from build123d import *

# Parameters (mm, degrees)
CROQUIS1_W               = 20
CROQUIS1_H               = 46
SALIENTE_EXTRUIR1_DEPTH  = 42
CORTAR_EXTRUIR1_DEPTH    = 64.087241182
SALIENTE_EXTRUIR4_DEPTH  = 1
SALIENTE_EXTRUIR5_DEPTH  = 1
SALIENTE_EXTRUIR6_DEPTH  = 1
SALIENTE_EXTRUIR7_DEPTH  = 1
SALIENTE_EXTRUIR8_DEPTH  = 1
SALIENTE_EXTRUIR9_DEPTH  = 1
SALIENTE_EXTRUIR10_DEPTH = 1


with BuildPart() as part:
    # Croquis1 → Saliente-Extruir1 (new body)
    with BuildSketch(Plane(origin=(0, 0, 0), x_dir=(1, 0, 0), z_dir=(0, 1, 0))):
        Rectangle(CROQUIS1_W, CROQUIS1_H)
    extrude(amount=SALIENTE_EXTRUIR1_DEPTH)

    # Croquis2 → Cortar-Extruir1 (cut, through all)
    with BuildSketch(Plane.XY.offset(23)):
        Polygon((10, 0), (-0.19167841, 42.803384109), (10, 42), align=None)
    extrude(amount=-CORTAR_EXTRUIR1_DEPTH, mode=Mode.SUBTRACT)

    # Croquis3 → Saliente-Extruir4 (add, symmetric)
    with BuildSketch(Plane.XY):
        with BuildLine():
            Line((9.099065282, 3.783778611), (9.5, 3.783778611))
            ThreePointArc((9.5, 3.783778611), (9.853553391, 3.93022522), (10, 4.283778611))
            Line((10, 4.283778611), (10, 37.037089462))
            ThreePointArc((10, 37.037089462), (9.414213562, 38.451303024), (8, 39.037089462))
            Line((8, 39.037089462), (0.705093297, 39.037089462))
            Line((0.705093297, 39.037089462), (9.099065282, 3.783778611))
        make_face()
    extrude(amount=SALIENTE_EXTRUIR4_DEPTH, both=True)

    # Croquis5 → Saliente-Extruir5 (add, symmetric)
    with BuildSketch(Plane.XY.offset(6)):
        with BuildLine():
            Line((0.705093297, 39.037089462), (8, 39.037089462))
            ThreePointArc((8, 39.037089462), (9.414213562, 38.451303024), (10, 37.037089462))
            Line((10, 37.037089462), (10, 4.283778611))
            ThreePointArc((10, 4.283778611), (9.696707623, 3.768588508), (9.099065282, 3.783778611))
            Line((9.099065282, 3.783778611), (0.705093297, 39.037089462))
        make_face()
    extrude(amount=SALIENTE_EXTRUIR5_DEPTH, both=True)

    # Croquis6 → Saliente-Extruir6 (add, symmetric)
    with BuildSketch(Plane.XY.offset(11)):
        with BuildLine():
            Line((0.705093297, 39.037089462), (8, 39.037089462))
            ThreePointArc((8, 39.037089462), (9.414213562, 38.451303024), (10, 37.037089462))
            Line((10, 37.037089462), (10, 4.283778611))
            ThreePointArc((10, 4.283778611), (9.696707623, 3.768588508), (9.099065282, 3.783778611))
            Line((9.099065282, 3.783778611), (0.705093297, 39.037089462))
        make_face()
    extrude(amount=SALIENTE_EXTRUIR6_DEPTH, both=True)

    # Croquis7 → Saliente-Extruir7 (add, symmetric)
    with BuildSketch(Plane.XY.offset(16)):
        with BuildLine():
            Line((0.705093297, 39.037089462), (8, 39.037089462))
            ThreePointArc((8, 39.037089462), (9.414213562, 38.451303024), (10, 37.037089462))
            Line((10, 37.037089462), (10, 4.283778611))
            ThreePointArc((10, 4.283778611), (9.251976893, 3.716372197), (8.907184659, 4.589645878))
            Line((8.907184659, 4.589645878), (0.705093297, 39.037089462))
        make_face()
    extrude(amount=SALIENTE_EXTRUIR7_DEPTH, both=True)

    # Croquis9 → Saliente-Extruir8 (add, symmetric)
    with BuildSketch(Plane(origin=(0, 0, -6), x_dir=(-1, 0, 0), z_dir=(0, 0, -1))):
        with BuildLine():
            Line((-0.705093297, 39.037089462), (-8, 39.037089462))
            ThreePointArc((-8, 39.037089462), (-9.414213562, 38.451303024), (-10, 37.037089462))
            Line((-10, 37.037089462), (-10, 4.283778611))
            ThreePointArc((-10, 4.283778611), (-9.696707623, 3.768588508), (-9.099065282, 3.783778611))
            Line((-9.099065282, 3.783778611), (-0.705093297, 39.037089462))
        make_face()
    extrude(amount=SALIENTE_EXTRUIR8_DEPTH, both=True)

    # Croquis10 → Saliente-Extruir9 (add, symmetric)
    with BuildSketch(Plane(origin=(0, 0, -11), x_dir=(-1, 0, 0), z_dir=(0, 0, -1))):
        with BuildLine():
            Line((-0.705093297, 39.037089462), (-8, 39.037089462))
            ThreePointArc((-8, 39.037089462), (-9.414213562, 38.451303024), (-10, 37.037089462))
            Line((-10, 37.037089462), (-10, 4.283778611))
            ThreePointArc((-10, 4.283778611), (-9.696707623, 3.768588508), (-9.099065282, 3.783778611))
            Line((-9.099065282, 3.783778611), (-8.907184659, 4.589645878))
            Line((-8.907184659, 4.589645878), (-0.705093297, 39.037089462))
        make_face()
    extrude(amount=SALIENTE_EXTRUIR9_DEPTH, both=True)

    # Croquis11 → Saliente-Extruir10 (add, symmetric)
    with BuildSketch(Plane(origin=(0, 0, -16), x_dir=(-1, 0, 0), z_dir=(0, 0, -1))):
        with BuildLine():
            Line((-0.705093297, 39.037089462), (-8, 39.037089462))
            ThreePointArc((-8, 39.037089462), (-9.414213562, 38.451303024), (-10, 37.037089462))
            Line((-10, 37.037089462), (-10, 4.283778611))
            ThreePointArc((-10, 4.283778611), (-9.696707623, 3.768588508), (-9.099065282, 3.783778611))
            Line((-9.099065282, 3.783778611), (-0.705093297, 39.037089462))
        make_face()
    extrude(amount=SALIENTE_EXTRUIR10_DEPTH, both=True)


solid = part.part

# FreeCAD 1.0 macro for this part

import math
import FreeCAD as App
import Part
import Sketcher

V = App.Vector

doc = App.newDocument("Part")
body = doc.addObject("PartDesign::Body", "Body")

# Sketch on XZ plane
sketch1 = body.newObject("Sketcher::SketchObject", "Sketch")
sketch1.AttachmentSupport = (doc.getObject("XZ_Plane"), [""])
sketch1.MapMode = "FlatFace"
sketch1.addGeometry(Part.LineSegment(V(-10, -23, 0), V(-10, 23, 0)), False)
sketch1.addGeometry(Part.LineSegment(V(-10, 23, 0), V(10, 23, 0)), False)
sketch1.addGeometry(Part.LineSegment(V(10, 23, 0), V(10, -23, 0)), False)
sketch1.addGeometry(Part.LineSegment(V(10, -23, 0), V(-10, -23, 0)), False)
sketch1.addConstraint(Sketcher.Constraint("Coincident", 0, 2, 1, 1))
sketch1.addConstraint(Sketcher.Constraint("Coincident", 1, 2, 2, 1))
sketch1.addConstraint(Sketcher.Constraint("Coincident", 2, 2, 3, 1))
sketch1.addConstraint(Sketcher.Constraint("Coincident", 3, 2, 0, 1))
sketch1.addConstraint(Sketcher.Constraint("Vertical", 0))
sketch1.addConstraint(Sketcher.Constraint("Horizontal", 1))
sketch1.addConstraint(Sketcher.Constraint("Vertical", 2))
sketch1.addConstraint(Sketcher.Constraint("Horizontal", 3))
sketch1.addConstraint(Sketcher.Constraint("Symmetric", 0, 2, 2, 2, -1, 1))
sketch1.addConstraint(Sketcher.Constraint("DistanceX", 1, 1, 1, 2, 20.0))
sketch1.addConstraint(Sketcher.Constraint("DistanceY", 0, 1, 0, 2, 46.0))
pad1 = body.newObject("PartDesign::Pad", "Pad")
pad1.Profile = sketch1
pad1.Length = 42
pad1.Reversed = True

# Sketch on XY plane
sketch2 = body.newObject("Sketcher::SketchObject", "Sketch001")
sketch2.AttachmentSupport = (doc.getObject("XY_Plane"), [""])
sketch2.MapMode = "FlatFace"
sketch2.AttachmentOffset = App.Placement(V(0, 0, 23), App.Rotation())
sketch2.addGeometry(Part.LineSegment(V(-0.191678, 42.803384, 0), V(10, 0, 0)), False)
sketch2.addGeometry(Part.LineSegment(V(10, 0, 0), V(10, 42, 0)), False)
sketch2.addGeometry(Part.LineSegment(V(10, 42, 0), V(-0.191678, 42.803384, 0)), False)
sketch2.addConstraint(Sketcher.Constraint("Coincident", 0, 2, 1, 1))
sketch2.addConstraint(Sketcher.Constraint("Coincident", 1, 2, 2, 1))
sketch2.addConstraint(Sketcher.Constraint("Coincident", 2, 2, 0, 1))
sketch2.addConstraint(Sketcher.Constraint("Vertical", 1))
sketch2.addConstraint(Sketcher.Constraint("PointOnObject", 0, 2, -1))
sketch2.addConstraint(Sketcher.Constraint("DistanceY", 1, 1, 1, 2, 42.0))
sketch2.addConstraint(Sketcher.Constraint("Distance", 0, 44.0))
sketch2.addConstraint(Sketcher.Constraint("DistanceX", -1, 1, 0, 2, 10.0))
sketch2.addConstraint(Sketcher.Constraint("DistanceX", 2, 2, -1, 1, 0.191678))
pocket1 = body.newObject("PartDesign::Pocket", "Pocket")
pocket1.Profile = sketch2
pocket1.Type = "ThroughAll"

# Sketch on XY plane
sketch3 = body.newObject("Sketcher::SketchObject", "Sketch002")
sketch3.AttachmentSupport = (doc.getObject("XY_Plane"), [""])
sketch3.MapMode = "FlatFace"
sketch3.addGeometry(Part.LineSegment(V(9.099065, 3.783779, 0), V(9.5, 3.783779, 0)), False)
sketch3.addGeometry(Part.ArcOfCircle(Part.Circle(V(9.5, 4.283779, 0), V(0, 0, 1), 0.5), math.radians(-90), math.radians(0)), False)
sketch3.addGeometry(Part.LineSegment(V(10, 4.283779, 0), V(10, 37.037089, 0)), False)
sketch3.addGeometry(Part.ArcOfCircle(Part.Circle(V(8, 37.037089, 0), V(0, 0, 1), 2), math.radians(0), math.radians(90)), False)
sketch3.addGeometry(Part.LineSegment(V(8, 39.037089, 0), V(0.705093, 39.037089, 0)), False)
sketch3.addGeometry(Part.LineSegment(V(0.705093, 39.037089, 0), V(9.099065, 3.783779, 0)), False)
sketch3.addConstraint(Sketcher.Constraint("Tangent", 0, 2, 1, 1))
sketch3.addConstraint(Sketcher.Constraint("Tangent", 1, 2, 2, 1))
sketch3.addConstraint(Sketcher.Constraint("Tangent", 2, 2, 3, 1))
sketch3.addConstraint(Sketcher.Constraint("Tangent", 3, 2, 4, 1))
sketch3.addConstraint(Sketcher.Constraint("Coincident", 4, 2, 5, 1))
sketch3.addConstraint(Sketcher.Constraint("Coincident", 5, 2, 0, 1))
sketch3.addConstraint(Sketcher.Constraint("Horizontal", 0))
sketch3.addConstraint(Sketcher.Constraint("Vertical", 2))
sketch3.addConstraint(Sketcher.Constraint("Horizontal", 4))
sketch3.addConstraint(Sketcher.Constraint("Radius", 3, 2.0))
sketch3.addConstraint(Sketcher.Constraint("Radius", 1, 0.5))
sketch3.addConstraint(Sketcher.Constraint("DistanceX", -1, 1, 3, 3, 8.0))
sketch3.addConstraint(Sketcher.Constraint("DistanceY", 2, 1, 2, 2, 32.753311))
sketch3.addConstraint(Sketcher.Constraint("DistanceX", 0, 1, 0, 2, 0.400935))
sketch3.addConstraint(Sketcher.Constraint("DistanceX", 4, 2, 4, 1, 7.294907))
sketch3.addConstraint(Sketcher.Constraint("DistanceY", -1, 1, 1, 3, 4.283779))
pad2 = body.newObject("PartDesign::Pad", "Pad001")
pad2.Profile = sketch3
pad2.Length = 2
pad2.Midplane = True

# Sketch on XY plane
sketch4 = body.newObject("Sketcher::SketchObject", "Sketch003")
sketch4.AttachmentSupport = (doc.getObject("XY_Plane"), [""])
sketch4.MapMode = "FlatFace"
sketch4.AttachmentOffset = App.Placement(V(0, 0, 6), App.Rotation())
sketch4.addGeometry(Part.LineSegment(V(8, 39.037089, 0), V(0.705093, 39.037089, 0)), False)
sketch4.addGeometry(Part.LineSegment(V(0.705093, 39.037089, 0), V(9.099065, 3.783779, 0)), False)
sketch4.addGeometry(Part.ArcOfCircle(Part.Circle(V(9.410788, 4.283779, 0), V(0, 0, 1), 0.589212), math.radians(-121.941276), math.radians(0)), False)
sketch4.addGeometry(Part.LineSegment(V(10, 4.283779, 0), V(10, 37.037089, 0)), False)
sketch4.addGeometry(Part.ArcOfCircle(Part.Circle(V(8, 37.037089, 0), V(0, 0, 1), 2), math.radians(0), math.radians(90)), False)
sketch4.addConstraint(Sketcher.Constraint("Coincident", 0, 2, 1, 1))
sketch4.addConstraint(Sketcher.Constraint("Coincident", 1, 2, 2, 1))
sketch4.addConstraint(Sketcher.Constraint("Tangent", 2, 2, 3, 1))
sketch4.addConstraint(Sketcher.Constraint("Tangent", 3, 2, 4, 1))
sketch4.addConstraint(Sketcher.Constraint("Tangent", 4, 2, 0, 1))
sketch4.addConstraint(Sketcher.Constraint("Horizontal", 0))
sketch4.addConstraint(Sketcher.Constraint("Vertical", 3))
sketch4.addConstraint(Sketcher.Constraint("Radius", 4, 2.0))
sketch4.addConstraint(Sketcher.Constraint("DistanceX", -1, 1, 4, 3, 8.0))
sketch4.addConstraint(Sketcher.Constraint("DistanceY", 1, 2, 2, 3, 0.5))
sketch4.addConstraint(Sketcher.Constraint("Radius", 2, 0.589212))
sketch4.addConstraint(Sketcher.Constraint("DistanceY", 3, 1, 3, 2, 32.753311))
sketch4.addConstraint(Sketcher.Constraint("DistanceX", 0, 2, 0, 1, 7.294907))
sketch4.addConstraint(Sketcher.Constraint("DistanceY", -1, 1, 2, 3, 4.283779))
pad3 = body.newObject("PartDesign::Pad", "Pad002")
pad3.Profile = sketch4
pad3.Length = 2
pad3.Midplane = True

# Sketch on XY plane
sketch5 = body.newObject("Sketcher::SketchObject", "Sketch004")
sketch5.AttachmentSupport = (doc.getObject("XY_Plane"), [""])
sketch5.MapMode = "FlatFace"
sketch5.AttachmentOffset = App.Placement(V(0, 0, 11), App.Rotation())
sketch5.addGeometry(Part.LineSegment(V(8, 39.037089, 0), V(0.705093, 39.037089, 0)), False)
sketch5.addGeometry(Part.LineSegment(V(0.705093, 39.037089, 0), V(9.099065, 3.783779, 0)), False)
sketch5.addGeometry(Part.ArcOfCircle(Part.Circle(V(9.410788, 4.283779, 0), V(0, 0, 1), 0.589212), math.radians(-121.941276), math.radians(0)), False)
sketch5.addGeometry(Part.LineSegment(V(10, 4.283779, 0), V(10, 37.037089, 0)), False)
sketch5.addGeometry(Part.ArcOfCircle(Part.Circle(V(8, 37.037089, 0), V(0, 0, 1), 2), math.radians(0), math.radians(90)), False)
sketch5.addConstraint(Sketcher.Constraint("Coincident", 0, 2, 1, 1))
sketch5.addConstraint(Sketcher.Constraint("Coincident", 1, 2, 2, 1))
sketch5.addConstraint(Sketcher.Constraint("Tangent", 2, 2, 3, 1))
sketch5.addConstraint(Sketcher.Constraint("Tangent", 3, 2, 4, 1))
sketch5.addConstraint(Sketcher.Constraint("Tangent", 4, 2, 0, 1))
sketch5.addConstraint(Sketcher.Constraint("Horizontal", 0))
sketch5.addConstraint(Sketcher.Constraint("Vertical", 3))
sketch5.addConstraint(Sketcher.Constraint("Radius", 4, 2.0))
sketch5.addConstraint(Sketcher.Constraint("DistanceX", -1, 1, 4, 3, 8.0))
sketch5.addConstraint(Sketcher.Constraint("DistanceY", 1, 2, 2, 3, 0.5))
sketch5.addConstraint(Sketcher.Constraint("Radius", 2, 0.589212))
sketch5.addConstraint(Sketcher.Constraint("DistanceY", 3, 1, 3, 2, 32.753311))
sketch5.addConstraint(Sketcher.Constraint("DistanceX", 0, 2, 0, 1, 7.294907))
sketch5.addConstraint(Sketcher.Constraint("DistanceY", -1, 1, 2, 3, 4.283779))
pad4 = body.newObject("PartDesign::Pad", "Pad003")
pad4.Profile = sketch5
pad4.Length = 2
pad4.Midplane = True

# Sketch on XY plane
sketch6 = body.newObject("Sketcher::SketchObject", "Sketch005")
sketch6.AttachmentSupport = (doc.getObject("XY_Plane"), [""])
sketch6.MapMode = "FlatFace"
sketch6.AttachmentOffset = App.Placement(V(0, 0, 16), App.Rotation())
sketch6.addGeometry(Part.LineSegment(V(8, 39.037089, 0), V(0.705093, 39.037089, 0)), False)
sketch6.addGeometry(Part.LineSegment(V(0.705093, 39.037089, 0), V(8.907185, 4.589646, 0)), False)
sketch6.addGeometry(Part.ArcOfCircle(Part.Circle(V(9.410788, 4.283779, 0), V(0, 0, 1), 0.589212), math.radians(148.727276), math.radians(360)), False)
sketch6.addGeometry(Part.LineSegment(V(10, 4.283779, 0), V(10, 37.037089, 0)), False)
sketch6.addGeometry(Part.ArcOfCircle(Part.Circle(V(8, 37.037089, 0), V(0, 0, 1), 2), math.radians(0), math.radians(90)), False)
sketch6.addConstraint(Sketcher.Constraint("Coincident", 0, 2, 1, 1))
sketch6.addConstraint(Sketcher.Constraint("Coincident", 1, 2, 2, 1))
sketch6.addConstraint(Sketcher.Constraint("Tangent", 2, 2, 3, 1))
sketch6.addConstraint(Sketcher.Constraint("Tangent", 3, 2, 4, 1))
sketch6.addConstraint(Sketcher.Constraint("Tangent", 4, 2, 0, 1))
sketch6.addConstraint(Sketcher.Constraint("Horizontal", 0))
sketch6.addConstraint(Sketcher.Constraint("Vertical", 3))
sketch6.addConstraint(Sketcher.Constraint("Radius", 4, 2.0))
sketch6.addConstraint(Sketcher.Constraint("DistanceX", -1, 1, 4, 3, 8.0))
sketch6.addConstraint(Sketcher.Constraint("Radius", 2, 0.589212))
sketch6.addConstraint(Sketcher.Constraint("DistanceY", 3, 1, 3, 2, 32.753311))
sketch6.addConstraint(Sketcher.Constraint("Distance", 1, 35.41046))
sketch6.addConstraint(Sketcher.Constraint("DistanceX", 0, 2, 0, 1, 7.294907))
sketch6.addConstraint(Sketcher.Constraint("DistanceY", -1, 1, 2, 3, 4.283779))
pad5 = body.newObject("PartDesign::Pad", "Pad004")
pad5.Profile = sketch6
pad5.Length = 2
pad5.Midplane = True

# Sketch on XY plane
sketch7 = body.newObject("Sketcher::SketchObject", "Sketch006")
sketch7.AttachmentSupport = (doc.getObject("XY_Plane"), [""])
sketch7.MapMode = "FlatFace"
sketch7.AttachmentOffset = App.Placement(V(0, 0, -6), App.Rotation())
sketch7.addGeometry(Part.LineSegment(V(0.705093, 39.037089, 0), V(8, 39.037089, 0)), False)
sketch7.addGeometry(Part.ArcOfCircle(Part.Circle(V(8, 37.037089, 0), V(0, 0, 1), 2), math.radians(0), math.radians(90)), False)
sketch7.addGeometry(Part.LineSegment(V(10, 37.037089, 0), V(10, 4.283779, 0)), False)
sketch7.addGeometry(Part.ArcOfCircle(Part.Circle(V(9.410788, 4.283779, 0), V(0, 0, 1), 0.589212), math.radians(-121.941276), math.radians(0)), False)
sketch7.addGeometry(Part.LineSegment(V(9.099065, 3.783779, 0), V(0.705093, 39.037089, 0)), False)
sketch7.addConstraint(Sketcher.Constraint("Tangent", 0, 2, 1, 2))
sketch7.addConstraint(Sketcher.Constraint("Tangent", 1, 1, 2, 1))
sketch7.addConstraint(Sketcher.Constraint("Tangent", 2, 2, 3, 2))
sketch7.addConstraint(Sketcher.Constraint("Coincident", 3, 1, 4, 1))
sketch7.addConstraint(Sketcher.Constraint("Coincident", 4, 2, 0, 1))
sketch7.addConstraint(Sketcher.Constraint("Horizontal", 0))
sketch7.addConstraint(Sketcher.Constraint("Vertical", 2))
sketch7.addConstraint(Sketcher.Constraint("Radius", 1, 2.0))
sketch7.addConstraint(Sketcher.Constraint("DistanceX", -1, 1, 1, 3, 8.0))
sketch7.addConstraint(Sketcher.Constraint("DistanceY", 3, 1, 3, 3, 0.5))
sketch7.addConstraint(Sketcher.Constraint("Radius", 3, 0.589212))
sketch7.addConstraint(Sketcher.Constraint("DistanceY", 2, 2, 2, 1, 32.753311))
sketch7.addConstraint(Sketcher.Constraint("DistanceX", 0, 1, 0, 2, 7.294907))
sketch7.addConstraint(Sketcher.Constraint("DistanceY", -1, 1, 1, 3, 37.037089))
pad6 = body.newObject("PartDesign::Pad", "Pad005")
pad6.Profile = sketch7
pad6.Length = 2
pad6.Midplane = True

# Sketch on XY plane
sketch8 = body.newObject("Sketcher::SketchObject", "Sketch007")
sketch8.AttachmentSupport = (doc.getObject("XY_Plane"), [""])
sketch8.MapMode = "FlatFace"
sketch8.AttachmentOffset = App.Placement(V(0, 0, -11), App.Rotation())
sketch8.addGeometry(Part.LineSegment(V(0.705093, 39.037089, 0), V(8, 39.037089, 0)), False)
sketch8.addGeometry(Part.ArcOfCircle(Part.Circle(V(8, 37.037089, 0), V(0, 0, 1), 2), math.radians(0), math.radians(90)), False)
sketch8.addGeometry(Part.LineSegment(V(10, 37.037089, 0), V(10, 4.283779, 0)), False)
sketch8.addGeometry(Part.ArcOfCircle(Part.Circle(V(9.410788, 4.283779, 0), V(0, 0, 1), 0.589212), math.radians(-121.941276), math.radians(0)), False)
sketch8.addGeometry(Part.LineSegment(V(9.099065, 3.783779, 0), V(8.907185, 4.589646, 0)), False)
sketch8.addGeometry(Part.LineSegment(V(8.907185, 4.589646, 0), V(0.705093, 39.037089, 0)), False)
sketch8.addConstraint(Sketcher.Constraint("Tangent", 0, 2, 1, 2))
sketch8.addConstraint(Sketcher.Constraint("Tangent", 1, 1, 2, 1))
sketch8.addConstraint(Sketcher.Constraint("Tangent", 2, 2, 3, 2))
sketch8.addConstraint(Sketcher.Constraint("Coincident", 3, 1, 4, 1))
sketch8.addConstraint(Sketcher.Constraint("Coincident", 4, 2, 5, 1))
sketch8.addConstraint(Sketcher.Constraint("Coincident", 5, 2, 0, 1))
sketch8.addConstraint(Sketcher.Constraint("Horizontal", 0))
sketch8.addConstraint(Sketcher.Constraint("Vertical", 2))
sketch8.addConstraint(Sketcher.Constraint("Parallel", 4, 5))
sketch8.addConstraint(Sketcher.Constraint("Radius", 1, 2.0))
sketch8.addConstraint(Sketcher.Constraint("DistanceX", -1, 1, 1, 3, 8.0))
sketch8.addConstraint(Sketcher.Constraint("DistanceY", 3, 1, 3, 3, 0.5))
sketch8.addConstraint(Sketcher.Constraint("Radius", 3, 0.589212))
sketch8.addConstraint(Sketcher.Constraint("DistanceY", 2, 2, 2, 1, 32.753311))
sketch8.addConstraint(Sketcher.Constraint("Distance", 5, 35.41046))
sketch8.addConstraint(Sketcher.Constraint("DistanceX", 0, 1, 0, 2, 7.294907))
sketch8.addConstraint(Sketcher.Constraint("DistanceY", -1, 1, 1, 3, 37.037089))
pad7 = body.newObject("PartDesign::Pad", "Pad006")
pad7.Profile = sketch8
pad7.Length = 2
pad7.Midplane = True

# Sketch on XY plane
sketch9 = body.newObject("Sketcher::SketchObject", "Sketch008")
sketch9.AttachmentSupport = (doc.getObject("XY_Plane"), [""])
sketch9.MapMode = "FlatFace"
sketch9.AttachmentOffset = App.Placement(V(0, 0, -16), App.Rotation())
sketch9.addGeometry(Part.LineSegment(V(0.705093, 39.037089, 0), V(8, 39.037089, 0)), False)
sketch9.addGeometry(Part.ArcOfCircle(Part.Circle(V(8, 37.037089, 0), V(0, 0, 1), 2), math.radians(0), math.radians(90)), False)
sketch9.addGeometry(Part.LineSegment(V(10, 37.037089, 0), V(10, 4.283779, 0)), False)
sketch9.addGeometry(Part.ArcOfCircle(Part.Circle(V(9.410788, 4.283779, 0), V(0, 0, 1), 0.589212), math.radians(-121.941276), math.radians(0)), False)
sketch9.addGeometry(Part.LineSegment(V(9.099065, 3.783779, 0), V(0.705093, 39.037089, 0)), False)
sketch9.addConstraint(Sketcher.Constraint("Tangent", 0, 2, 1, 2))
sketch9.addConstraint(Sketcher.Constraint("Tangent", 1, 1, 2, 1))
sketch9.addConstraint(Sketcher.Constraint("Tangent", 2, 2, 3, 2))
sketch9.addConstraint(Sketcher.Constraint("Coincident", 3, 1, 4, 1))
sketch9.addConstraint(Sketcher.Constraint("Coincident", 4, 2, 0, 1))
sketch9.addConstraint(Sketcher.Constraint("Horizontal", 0))
sketch9.addConstraint(Sketcher.Constraint("Vertical", 2))
sketch9.addConstraint(Sketcher.Constraint("Radius", 1, 2.0))
sketch9.addConstraint(Sketcher.Constraint("DistanceX", -1, 1, 1, 3, 8.0))
sketch9.addConstraint(Sketcher.Constraint("DistanceY", 3, 1, 3, 3, 0.5))
sketch9.addConstraint(Sketcher.Constraint("Radius", 3, 0.589212))
sketch9.addConstraint(Sketcher.Constraint("DistanceY", 2, 2, 2, 1, 32.753311))
sketch9.addConstraint(Sketcher.Constraint("DistanceX", 0, 1, 0, 2, 7.294907))
sketch9.addConstraint(Sketcher.Constraint("DistanceY", -1, 1, 1, 3, 37.037089))
pad8 = body.newObject("PartDesign::Pad", "Pad007")
pad8.Profile = sketch9
pad8.Length = 2
pad8.Midplane = True

doc.recompute()
